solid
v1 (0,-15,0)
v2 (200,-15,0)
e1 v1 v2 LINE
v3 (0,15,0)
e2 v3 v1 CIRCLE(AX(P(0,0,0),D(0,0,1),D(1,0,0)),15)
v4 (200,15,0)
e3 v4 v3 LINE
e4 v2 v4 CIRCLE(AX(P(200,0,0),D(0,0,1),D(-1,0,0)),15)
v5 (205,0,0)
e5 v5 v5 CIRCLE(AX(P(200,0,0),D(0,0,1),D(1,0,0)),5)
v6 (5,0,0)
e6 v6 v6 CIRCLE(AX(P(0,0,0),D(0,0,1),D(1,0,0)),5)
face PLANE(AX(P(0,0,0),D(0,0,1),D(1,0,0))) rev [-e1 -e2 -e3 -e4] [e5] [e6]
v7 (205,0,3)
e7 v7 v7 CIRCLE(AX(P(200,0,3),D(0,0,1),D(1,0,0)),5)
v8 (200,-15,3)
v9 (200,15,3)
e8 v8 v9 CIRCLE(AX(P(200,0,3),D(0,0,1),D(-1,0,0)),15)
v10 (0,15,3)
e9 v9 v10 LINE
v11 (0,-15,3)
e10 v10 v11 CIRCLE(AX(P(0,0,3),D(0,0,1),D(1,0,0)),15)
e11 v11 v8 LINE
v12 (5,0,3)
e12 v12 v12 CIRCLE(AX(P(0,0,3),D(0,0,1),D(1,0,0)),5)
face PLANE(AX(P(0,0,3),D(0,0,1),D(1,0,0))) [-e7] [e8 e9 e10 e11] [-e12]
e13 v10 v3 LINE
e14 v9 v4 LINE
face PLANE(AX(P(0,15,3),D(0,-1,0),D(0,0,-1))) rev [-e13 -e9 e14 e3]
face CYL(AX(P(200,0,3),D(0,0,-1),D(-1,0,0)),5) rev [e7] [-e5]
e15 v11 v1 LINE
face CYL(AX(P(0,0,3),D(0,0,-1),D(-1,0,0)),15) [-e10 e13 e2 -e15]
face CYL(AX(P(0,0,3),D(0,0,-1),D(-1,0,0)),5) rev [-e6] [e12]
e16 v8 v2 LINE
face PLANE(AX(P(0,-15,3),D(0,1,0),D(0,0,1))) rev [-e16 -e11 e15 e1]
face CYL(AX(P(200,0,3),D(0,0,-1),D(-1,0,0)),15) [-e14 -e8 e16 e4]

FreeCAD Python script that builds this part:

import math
import FreeCAD as App
import Part
import Sketcher

V = App.Vector

doc = App.newDocument("Part")
params = doc.addObject("Spreadsheet::Sheet", "Params")
for row, (alias, value) in enumerate([
    ("sketch1_diameter", "10 mm"),
    ("sketch1_radius", "15 mm"),
    ("sketch1_width", "200 mm"),
    ("pad1_length", "3 mm"),
], start=1):
    params.set(f"A{row}", alias)
    params.set(f"B{row}", "=" + value)
    params.setAlias(f"B{row}", alias)

body = doc.addObject("PartDesign::Body", "Body")

# Sketch on XY plane
sketch1 = doc.addObject("Sketcher::SketchObject", "Sketch")
body.addObject(sketch1)
sketch1.AttachmentSupport = (doc.XY_Plane, [""])
sketch1.MapMode = "FlatFace"
sketch1.addGeometry(Part.LineSegment(V(200, 15, 0), V(0, 15, 0)), False)
sketch1.addGeometry(Part.ArcOfCircle(Part.Circle(V(0, 0, 0), V(0, 0, 1), 15), math.radians(90), math.radians(270)), False)
sketch1.addGeometry(Part.LineSegment(V(0, -15, 0), V(200, -15, 0)), False)
sketch1.addGeometry(Part.ArcOfCircle(Part.Circle(V(200, 0, 0), V(0, 0, 1), 15), math.radians(-90), math.radians(90)), False)
sketch1.addGeometry(Part.Circle(V(200, 0, 0), V(0, 0, 1), 5), False)
sketch1.addGeometry(Part.Circle(V(0, 0, 0), V(0, 0, 1), 5), False)
sketch1.addConstraint(Sketcher.Constraint("Tangent", 0, 2, 1, 1))
sketch1.addConstraint(Sketcher.Constraint("Tangent", 1, 2, 2, 1))
sketch1.addConstraint(Sketcher.Constraint("Tangent", 2, 2, 3, 1))
sketch1.addConstraint(Sketcher.Constraint("Tangent", 3, 2, 0, 1))
sketch1.addConstraint(Sketcher.Constraint("Horizontal", 0))
sketch1.addConstraint(Sketcher.Constraint("Horizontal", 2))
sketch1.addConstraint(Sketcher.Constraint("Coincident", 1, 3, -1, 1))
sketch1.addConstraint(Sketcher.Constraint("Coincident", 5, 3, -1, 1))
sketch1.addConstraint(Sketcher.Constraint("Coincident", 4, 3, 3, 3))
sketch1.addConstraint(Sketcher.Constraint("Equal", 4, 5))
sketch1.addConstraint(Sketcher.Constraint("Diameter", 4, 10.0))
sketch1.addConstraint(Sketcher.Constraint("Radius", 1, 15.0))
sketch1.addConstraint(Sketcher.Constraint("DistanceX", 0, 2, 0, 1, 200.0))
sketch1.setExpression("Constraints[10]", "Params.sketch1_diameter")
sketch1.setExpression("Constraints[11]", "Params.sketch1_radius")
sketch1.setExpression("Constraints[12]", "Params.sketch1_width")
pad1 = doc.addObject("PartDesign::Pad", "Pad")
body.addObject(pad1)
pad1.Profile = sketch1
pad1.setExpression("Length", "Params.pad1_length")

doc.recompute()
